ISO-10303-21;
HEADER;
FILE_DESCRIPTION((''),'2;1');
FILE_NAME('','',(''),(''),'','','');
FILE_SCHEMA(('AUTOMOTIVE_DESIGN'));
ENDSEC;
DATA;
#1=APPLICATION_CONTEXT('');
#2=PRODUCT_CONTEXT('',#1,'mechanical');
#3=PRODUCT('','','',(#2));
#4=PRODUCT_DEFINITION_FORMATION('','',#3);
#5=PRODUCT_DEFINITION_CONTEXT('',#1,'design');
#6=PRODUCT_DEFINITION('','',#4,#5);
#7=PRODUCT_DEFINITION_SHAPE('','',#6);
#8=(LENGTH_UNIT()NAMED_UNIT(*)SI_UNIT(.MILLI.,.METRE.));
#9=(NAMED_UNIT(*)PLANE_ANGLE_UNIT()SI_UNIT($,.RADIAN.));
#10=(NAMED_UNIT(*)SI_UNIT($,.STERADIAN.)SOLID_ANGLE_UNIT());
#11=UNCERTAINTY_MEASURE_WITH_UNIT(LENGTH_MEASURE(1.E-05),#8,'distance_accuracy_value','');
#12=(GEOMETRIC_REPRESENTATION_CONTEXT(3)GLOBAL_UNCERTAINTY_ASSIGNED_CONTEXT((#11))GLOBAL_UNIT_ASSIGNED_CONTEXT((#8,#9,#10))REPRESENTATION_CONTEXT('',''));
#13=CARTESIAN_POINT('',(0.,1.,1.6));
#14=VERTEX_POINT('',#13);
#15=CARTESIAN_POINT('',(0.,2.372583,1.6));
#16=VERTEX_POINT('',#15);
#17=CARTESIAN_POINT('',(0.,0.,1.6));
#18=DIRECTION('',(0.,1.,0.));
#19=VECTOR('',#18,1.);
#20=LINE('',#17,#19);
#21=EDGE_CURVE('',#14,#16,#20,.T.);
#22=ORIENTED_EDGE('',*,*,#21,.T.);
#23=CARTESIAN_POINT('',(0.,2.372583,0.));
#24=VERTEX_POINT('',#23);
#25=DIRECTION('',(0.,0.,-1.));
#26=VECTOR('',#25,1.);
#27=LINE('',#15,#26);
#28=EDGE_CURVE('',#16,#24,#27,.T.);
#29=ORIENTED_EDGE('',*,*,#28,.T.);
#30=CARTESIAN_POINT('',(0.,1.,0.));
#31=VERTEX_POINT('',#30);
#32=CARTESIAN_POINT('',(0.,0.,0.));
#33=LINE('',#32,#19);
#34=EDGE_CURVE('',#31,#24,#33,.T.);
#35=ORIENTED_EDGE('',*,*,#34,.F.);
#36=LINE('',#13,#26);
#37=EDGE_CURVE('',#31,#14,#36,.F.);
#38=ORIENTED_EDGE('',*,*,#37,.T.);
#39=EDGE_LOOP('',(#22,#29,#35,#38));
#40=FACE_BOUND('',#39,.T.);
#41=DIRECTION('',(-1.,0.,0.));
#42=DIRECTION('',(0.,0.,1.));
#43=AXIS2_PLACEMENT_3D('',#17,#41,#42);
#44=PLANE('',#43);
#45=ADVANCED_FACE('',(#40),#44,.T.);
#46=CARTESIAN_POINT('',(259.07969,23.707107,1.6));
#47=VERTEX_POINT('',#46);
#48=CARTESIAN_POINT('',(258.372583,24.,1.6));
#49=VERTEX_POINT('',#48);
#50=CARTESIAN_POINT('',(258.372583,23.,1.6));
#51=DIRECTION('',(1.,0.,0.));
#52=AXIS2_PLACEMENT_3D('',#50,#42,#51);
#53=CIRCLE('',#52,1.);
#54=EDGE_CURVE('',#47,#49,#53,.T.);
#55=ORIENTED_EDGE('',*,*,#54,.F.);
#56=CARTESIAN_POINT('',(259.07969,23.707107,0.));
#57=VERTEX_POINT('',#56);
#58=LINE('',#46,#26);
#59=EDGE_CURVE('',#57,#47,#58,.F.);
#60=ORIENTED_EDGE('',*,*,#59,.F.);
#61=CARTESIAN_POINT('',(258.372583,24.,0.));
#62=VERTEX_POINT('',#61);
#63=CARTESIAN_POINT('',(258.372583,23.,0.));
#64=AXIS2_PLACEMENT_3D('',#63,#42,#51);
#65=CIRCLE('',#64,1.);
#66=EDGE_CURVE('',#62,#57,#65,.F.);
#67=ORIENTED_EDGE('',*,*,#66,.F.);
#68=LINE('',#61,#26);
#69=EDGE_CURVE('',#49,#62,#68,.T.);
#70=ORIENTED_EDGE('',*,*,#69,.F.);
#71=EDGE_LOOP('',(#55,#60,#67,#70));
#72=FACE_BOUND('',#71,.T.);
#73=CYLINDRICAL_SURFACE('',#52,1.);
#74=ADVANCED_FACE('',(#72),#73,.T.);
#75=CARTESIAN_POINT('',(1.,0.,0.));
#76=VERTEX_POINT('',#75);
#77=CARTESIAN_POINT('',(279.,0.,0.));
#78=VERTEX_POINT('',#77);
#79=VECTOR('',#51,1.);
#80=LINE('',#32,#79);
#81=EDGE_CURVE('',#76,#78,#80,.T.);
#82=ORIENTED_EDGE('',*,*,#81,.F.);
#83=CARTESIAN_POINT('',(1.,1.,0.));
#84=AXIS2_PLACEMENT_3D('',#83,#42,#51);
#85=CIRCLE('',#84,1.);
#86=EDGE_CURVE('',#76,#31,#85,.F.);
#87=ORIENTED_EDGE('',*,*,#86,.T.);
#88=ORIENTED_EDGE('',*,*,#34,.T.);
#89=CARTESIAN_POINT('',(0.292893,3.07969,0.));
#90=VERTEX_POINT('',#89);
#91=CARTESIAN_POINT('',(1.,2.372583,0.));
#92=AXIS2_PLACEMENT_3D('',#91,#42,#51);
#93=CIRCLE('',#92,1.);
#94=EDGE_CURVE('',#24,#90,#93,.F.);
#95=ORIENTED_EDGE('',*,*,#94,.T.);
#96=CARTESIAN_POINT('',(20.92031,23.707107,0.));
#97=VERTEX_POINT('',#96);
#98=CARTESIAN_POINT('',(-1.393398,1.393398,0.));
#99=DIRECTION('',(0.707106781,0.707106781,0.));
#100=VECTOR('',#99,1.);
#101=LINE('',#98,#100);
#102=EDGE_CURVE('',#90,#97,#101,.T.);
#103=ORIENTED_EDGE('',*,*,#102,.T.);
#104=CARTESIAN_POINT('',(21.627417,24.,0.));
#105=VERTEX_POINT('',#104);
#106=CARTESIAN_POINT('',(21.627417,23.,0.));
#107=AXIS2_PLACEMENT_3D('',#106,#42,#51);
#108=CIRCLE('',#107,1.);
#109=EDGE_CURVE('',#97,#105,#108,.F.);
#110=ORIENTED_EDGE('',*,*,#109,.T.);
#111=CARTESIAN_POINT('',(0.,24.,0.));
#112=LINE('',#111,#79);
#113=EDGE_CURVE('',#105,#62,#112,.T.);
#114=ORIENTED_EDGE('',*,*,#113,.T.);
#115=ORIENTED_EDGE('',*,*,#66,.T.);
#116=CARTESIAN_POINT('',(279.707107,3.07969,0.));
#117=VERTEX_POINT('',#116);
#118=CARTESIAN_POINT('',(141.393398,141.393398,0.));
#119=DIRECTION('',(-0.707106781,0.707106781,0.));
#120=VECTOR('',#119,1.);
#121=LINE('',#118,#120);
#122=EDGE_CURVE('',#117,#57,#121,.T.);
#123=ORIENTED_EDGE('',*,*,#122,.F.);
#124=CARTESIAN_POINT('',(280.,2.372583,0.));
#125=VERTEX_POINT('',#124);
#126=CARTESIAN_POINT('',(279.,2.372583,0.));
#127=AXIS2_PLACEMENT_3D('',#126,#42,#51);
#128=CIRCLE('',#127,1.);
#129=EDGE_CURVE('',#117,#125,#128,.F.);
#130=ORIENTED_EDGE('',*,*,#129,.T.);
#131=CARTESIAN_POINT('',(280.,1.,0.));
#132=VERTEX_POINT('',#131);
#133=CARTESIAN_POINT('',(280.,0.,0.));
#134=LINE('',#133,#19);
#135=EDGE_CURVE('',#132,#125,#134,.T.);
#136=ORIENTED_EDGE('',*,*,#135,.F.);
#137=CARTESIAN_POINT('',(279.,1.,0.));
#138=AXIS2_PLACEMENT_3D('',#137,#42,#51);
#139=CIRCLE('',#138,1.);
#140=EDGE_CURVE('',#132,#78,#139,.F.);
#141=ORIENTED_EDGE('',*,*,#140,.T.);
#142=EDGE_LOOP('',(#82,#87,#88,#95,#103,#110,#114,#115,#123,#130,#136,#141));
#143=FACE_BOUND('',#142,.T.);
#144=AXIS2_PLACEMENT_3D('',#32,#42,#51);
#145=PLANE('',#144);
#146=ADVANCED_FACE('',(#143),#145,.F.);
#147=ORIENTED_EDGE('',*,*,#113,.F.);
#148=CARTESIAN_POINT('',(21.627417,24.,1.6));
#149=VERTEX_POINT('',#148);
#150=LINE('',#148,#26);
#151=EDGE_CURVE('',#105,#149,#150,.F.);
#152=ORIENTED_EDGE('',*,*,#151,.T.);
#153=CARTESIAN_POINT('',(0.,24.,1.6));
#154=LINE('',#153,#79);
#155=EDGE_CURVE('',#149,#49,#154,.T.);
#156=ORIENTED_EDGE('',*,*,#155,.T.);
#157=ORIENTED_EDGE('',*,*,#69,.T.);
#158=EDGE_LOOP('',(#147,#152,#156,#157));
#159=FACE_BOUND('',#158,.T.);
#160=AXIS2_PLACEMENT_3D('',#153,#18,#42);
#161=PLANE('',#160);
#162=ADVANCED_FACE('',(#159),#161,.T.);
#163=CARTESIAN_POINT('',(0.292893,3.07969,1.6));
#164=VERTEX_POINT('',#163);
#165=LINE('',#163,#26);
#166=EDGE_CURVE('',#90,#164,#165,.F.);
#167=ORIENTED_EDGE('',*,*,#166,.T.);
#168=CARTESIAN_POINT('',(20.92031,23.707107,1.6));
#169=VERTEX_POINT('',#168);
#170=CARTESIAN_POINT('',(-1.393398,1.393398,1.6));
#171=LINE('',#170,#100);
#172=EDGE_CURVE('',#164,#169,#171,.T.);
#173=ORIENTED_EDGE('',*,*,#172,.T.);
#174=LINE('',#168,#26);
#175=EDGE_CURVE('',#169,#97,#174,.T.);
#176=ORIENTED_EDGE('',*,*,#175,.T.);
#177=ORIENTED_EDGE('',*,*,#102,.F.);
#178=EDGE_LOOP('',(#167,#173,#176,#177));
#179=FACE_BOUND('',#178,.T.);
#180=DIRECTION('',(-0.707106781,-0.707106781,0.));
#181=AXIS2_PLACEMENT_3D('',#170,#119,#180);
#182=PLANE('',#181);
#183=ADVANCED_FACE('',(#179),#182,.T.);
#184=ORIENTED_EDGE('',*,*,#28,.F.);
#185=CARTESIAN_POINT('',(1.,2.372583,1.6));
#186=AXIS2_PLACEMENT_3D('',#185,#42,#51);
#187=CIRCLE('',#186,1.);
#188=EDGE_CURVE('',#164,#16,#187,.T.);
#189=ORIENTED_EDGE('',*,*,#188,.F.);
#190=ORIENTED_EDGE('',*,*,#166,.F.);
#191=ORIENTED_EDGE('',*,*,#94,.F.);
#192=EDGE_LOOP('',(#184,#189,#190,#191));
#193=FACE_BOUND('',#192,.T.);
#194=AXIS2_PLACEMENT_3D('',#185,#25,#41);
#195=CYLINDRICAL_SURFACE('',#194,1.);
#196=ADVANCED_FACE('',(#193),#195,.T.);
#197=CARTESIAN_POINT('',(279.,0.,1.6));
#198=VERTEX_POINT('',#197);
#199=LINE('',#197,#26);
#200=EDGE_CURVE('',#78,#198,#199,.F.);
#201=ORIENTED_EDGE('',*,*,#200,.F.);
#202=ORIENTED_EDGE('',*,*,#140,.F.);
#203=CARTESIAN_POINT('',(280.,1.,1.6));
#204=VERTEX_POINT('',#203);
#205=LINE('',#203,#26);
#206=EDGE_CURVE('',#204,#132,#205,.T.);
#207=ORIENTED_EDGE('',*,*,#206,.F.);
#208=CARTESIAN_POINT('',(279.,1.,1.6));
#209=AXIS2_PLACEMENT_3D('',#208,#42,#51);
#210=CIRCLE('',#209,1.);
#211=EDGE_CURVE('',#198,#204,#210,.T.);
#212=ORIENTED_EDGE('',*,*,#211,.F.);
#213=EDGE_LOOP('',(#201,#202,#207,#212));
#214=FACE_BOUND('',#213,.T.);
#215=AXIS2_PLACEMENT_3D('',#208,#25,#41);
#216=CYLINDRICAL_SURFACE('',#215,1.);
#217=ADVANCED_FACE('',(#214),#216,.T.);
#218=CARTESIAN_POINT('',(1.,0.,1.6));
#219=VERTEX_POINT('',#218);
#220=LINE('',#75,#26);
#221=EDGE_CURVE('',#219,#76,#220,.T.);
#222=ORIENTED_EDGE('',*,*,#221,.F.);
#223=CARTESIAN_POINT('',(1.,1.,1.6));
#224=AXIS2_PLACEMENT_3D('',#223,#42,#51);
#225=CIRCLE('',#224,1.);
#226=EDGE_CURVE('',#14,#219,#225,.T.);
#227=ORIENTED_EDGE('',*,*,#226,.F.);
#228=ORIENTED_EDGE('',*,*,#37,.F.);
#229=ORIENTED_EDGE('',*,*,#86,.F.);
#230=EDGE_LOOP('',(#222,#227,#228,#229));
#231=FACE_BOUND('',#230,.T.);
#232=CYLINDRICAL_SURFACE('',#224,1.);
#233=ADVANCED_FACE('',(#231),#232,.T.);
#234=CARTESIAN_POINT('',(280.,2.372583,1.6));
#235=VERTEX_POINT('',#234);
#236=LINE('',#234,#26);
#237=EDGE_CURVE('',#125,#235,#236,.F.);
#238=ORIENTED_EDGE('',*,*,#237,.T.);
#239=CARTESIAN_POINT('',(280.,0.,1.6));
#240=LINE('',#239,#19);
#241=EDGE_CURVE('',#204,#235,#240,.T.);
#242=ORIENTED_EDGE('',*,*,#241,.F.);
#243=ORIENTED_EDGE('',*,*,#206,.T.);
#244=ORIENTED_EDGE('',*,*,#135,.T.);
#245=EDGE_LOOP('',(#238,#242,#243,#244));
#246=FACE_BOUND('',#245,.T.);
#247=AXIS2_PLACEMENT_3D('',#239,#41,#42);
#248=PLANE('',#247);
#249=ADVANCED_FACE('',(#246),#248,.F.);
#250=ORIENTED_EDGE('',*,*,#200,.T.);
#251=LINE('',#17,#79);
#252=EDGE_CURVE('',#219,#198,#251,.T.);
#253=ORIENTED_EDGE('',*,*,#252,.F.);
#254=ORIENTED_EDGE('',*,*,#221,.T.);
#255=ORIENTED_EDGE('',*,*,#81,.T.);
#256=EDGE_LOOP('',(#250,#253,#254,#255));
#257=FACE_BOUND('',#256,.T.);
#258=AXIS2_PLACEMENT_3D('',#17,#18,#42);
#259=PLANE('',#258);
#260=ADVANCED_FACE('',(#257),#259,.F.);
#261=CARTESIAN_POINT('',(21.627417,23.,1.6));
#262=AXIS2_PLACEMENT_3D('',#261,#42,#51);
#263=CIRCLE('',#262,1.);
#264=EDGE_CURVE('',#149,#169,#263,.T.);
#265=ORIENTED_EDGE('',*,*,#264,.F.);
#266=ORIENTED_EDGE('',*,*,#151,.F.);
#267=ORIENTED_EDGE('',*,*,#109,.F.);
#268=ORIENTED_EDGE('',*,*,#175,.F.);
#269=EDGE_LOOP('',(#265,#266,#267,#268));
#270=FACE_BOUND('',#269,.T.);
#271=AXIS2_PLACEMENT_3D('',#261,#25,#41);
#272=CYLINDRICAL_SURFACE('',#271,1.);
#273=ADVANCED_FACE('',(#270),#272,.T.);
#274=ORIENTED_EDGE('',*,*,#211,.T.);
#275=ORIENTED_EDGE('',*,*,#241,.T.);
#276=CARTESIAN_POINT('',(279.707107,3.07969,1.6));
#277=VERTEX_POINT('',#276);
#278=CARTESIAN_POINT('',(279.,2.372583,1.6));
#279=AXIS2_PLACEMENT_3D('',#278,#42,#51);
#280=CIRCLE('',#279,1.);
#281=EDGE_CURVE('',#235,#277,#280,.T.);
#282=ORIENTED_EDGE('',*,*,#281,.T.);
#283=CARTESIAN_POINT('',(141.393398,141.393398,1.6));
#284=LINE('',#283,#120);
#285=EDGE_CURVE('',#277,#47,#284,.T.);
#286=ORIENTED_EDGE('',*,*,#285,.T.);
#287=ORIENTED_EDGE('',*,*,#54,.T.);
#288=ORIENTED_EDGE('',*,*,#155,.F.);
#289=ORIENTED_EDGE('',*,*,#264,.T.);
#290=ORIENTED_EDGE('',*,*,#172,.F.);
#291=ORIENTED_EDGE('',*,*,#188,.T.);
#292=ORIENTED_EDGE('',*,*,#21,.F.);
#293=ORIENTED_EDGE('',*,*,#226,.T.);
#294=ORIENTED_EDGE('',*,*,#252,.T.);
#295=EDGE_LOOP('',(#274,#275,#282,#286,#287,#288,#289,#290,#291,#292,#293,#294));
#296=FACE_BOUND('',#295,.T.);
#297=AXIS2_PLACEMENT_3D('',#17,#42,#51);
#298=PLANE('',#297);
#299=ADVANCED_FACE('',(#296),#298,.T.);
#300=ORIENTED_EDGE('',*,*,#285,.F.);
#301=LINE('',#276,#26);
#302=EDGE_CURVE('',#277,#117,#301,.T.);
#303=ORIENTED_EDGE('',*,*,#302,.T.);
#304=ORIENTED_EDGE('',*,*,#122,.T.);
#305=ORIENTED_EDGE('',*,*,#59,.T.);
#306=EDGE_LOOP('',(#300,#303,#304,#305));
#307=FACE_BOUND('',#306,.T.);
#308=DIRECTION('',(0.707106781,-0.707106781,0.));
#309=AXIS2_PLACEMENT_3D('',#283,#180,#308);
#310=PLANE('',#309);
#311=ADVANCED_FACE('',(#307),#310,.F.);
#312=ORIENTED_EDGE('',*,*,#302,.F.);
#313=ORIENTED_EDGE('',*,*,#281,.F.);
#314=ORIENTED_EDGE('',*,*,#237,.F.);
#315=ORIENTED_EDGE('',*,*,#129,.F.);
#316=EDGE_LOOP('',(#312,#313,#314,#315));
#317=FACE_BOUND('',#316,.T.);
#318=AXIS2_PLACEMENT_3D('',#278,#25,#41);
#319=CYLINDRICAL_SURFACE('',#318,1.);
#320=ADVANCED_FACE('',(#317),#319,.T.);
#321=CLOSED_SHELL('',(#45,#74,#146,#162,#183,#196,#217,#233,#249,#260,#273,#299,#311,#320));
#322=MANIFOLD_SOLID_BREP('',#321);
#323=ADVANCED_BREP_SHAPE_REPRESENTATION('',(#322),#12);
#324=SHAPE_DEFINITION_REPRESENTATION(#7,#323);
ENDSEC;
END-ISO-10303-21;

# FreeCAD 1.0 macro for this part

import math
import FreeCAD as App
import Part
import Sketcher

V = App.Vector


def edges_at(feature, points):
    """Names of the edges that pass closest to the given points."""
    edges = feature.Shape.Edges
    near = lambda p: min(range(len(edges)), key=lambda i: edges[i].distToShape(Part.Vertex(*p))[0])
    return sorted({f"Edge{near(p) + 1}" for p in points})

doc = App.newDocument("Part")
body = doc.addObject("PartDesign::Body", "Body")

sketch1 = body.newObject("Sketcher::SketchObject", "Sketch")
sketch1.AttachmentSupport = (doc.getObject("XY_Plane"), [""])
sketch1.MapMode = "FlatFace"
sketch1.addGeometry([
    Part.LineSegment(V(21.2, 24, 0), V(0, 2.8, 0)),
    Part.LineSegment(V(0, 2.8, 0), V(0, 0, 0)),
    Part.LineSegment(V(0, 0, 0), V(42, 0, 0)),
    Part.LineSegment(V(42, 0, 0), V(42, 11, 0)),
    Part.ArcOfCircle(Part.Circle(V(46, 11, 0), V(0, 0, 1), 4), math.radians(90), math.radians(180)),
    Part.LineSegment(V(46, 15, 0), V(234, 15, 0)),
    Part.ArcOfCircle(Part.Circle(V(234, 11, 0), V(0, 0, 1), 4), math.radians(0), math.radians(90)),
    Part.LineSegment(V(238, 11, 0), V(238, 0, 0)),
    Part.LineSegment(V(238, 0, 0), V(280, 0, 0)),
    Part.LineSegment(V(280, 0, 0), V(280, 2.8, 0)),
    Part.LineSegment(V(280, 2.8, 0), V(258.8, 24, 0)),
    Part.LineSegment(V(258.8, 24, 0), V(21.2, 24, 0)),
], False)
sketch1.addConstraint([
    Sketcher.Constraint("Coincident", 0, 2, 1, 1),
    Sketcher.Constraint("Coincident", 1, 2, 2, 1),
    Sketcher.Constraint("Coincident", 2, 2, 3, 1),
    Sketcher.Constraint("Tangent", 3, 2, 4, 2),
    Sketcher.Constraint("Tangent", 4, 1, 5, 1),
    Sketcher.Constraint("Tangent", 5, 2, 6, 2),
    Sketcher.Constraint("Tangent", 6, 1, 7, 1),
    Sketcher.Constraint("Coincident", 7, 2, 8, 1),
    Sketcher.Constraint("Coincident", 8, 2, 9, 1),
    Sketcher.Constraint("Coincident", 9, 2, 10, 1),
    Sketcher.Constraint("Coincident", 10, 2, 11, 1),
    Sketcher.Constraint("Coincident", 11, 2, 0, 1),
    Sketcher.Constraint("Vertical", 1),
    Sketcher.Constraint("Horizontal", 2),
    Sketcher.Constraint("Vertical", 3),
    Sketcher.Constraint("Horizontal", 5),
    Sketcher.Constraint("Vertical", 7),
    Sketcher.Constraint("Horizontal", 8),
    Sketcher.Constraint("Vertical", 9),
    Sketcher.Constraint("Horizontal", 11),
    Sketcher.Constraint("Coincident", 1, 2, -1, 1),
    Sketcher.Constraint("Equal", 4, 6),
    Sketcher.Constraint("PointOnObject", 7, 2, -1),
    Sketcher.Constraint("Perpendicular", 0, 10),
    Sketcher.Constraint("Horizontal", 0, 2, 9, 2),
    Sketcher.Constraint("Equal", 2, 8),
    Sketcher.Constraint("Equal", 0, 10),
    Sketcher.Constraint("Radius", 4, 4.0),
    Sketcher.Constraint("DistanceX", 2, 1, 2, 2, 42.0),
    Sketcher.Constraint("DistanceX", 5, 1, 5, 2, 188.0),
    Sketcher.Constraint("DistanceY", 3, 1, 3, 2, 11.0),
    Sketcher.Constraint("Distance", 0, 30.0),
    Sketcher.Constraint("DistanceY", -1, 1, 10, 2, 24.0),
])
pad1 = body.newObject("PartDesign::Pad", "Pad")
pad1.Profile = sketch1
pad1.Length = 1.6
doc.recompute()

fillet = body.newObject("PartDesign::Fillet", "Fillet")
fillet.Base = (pad1, edges_at(pad1, [
    (0, 0, 0.8),
    (0, 2.787, 0.8),
    (21.213, 24, 0.8),
    (258.787, 24, 0.8),
    (280, 2.787, 0.8),
    (280, 0, 0.8),
]))
fillet.Radius = 1

sketch2 = body.newObject("Sketcher::SketchObject", "Sketch001")
sketch2.AttachmentSupport = (doc.getObject("XY_Plane"), [""])
sketch2.MapMode = "FlatFace"
sketch2.addGeometry([
    Part.LineSegment(V(42, 11, 0), V(42, 0, 0)),
    Part.LineSegment(V(42, 0, 0), V(238, 0, 0)),
    Part.LineSegment(V(238, 0, 0), V(238, 11, 0)),
    Part.ArcOfCircle(Part.Circle(V(234, 11, 0), V(0, 0, 1), 4), math.radians(0), math.radians(90)),
    Part.LineSegment(V(234, 15, 0), V(46, 15, 0)),
    Part.ArcOfCircle(Part.Circle(V(46, 11, 0), V(0, 0, 1), 4), math.radians(90), math.radians(180)),
], False)
sketch2.addConstraint([
    Sketcher.Constraint("Coincident", 0, 2, 1, 1),
    Sketcher.Constraint("Coincident", 1, 2, 2, 1),
    Sketcher.Constraint("Tangent", 2, 2, 3, 1),
    Sketcher.Constraint("Tangent", 3, 2, 4, 1),
    Sketcher.Constraint("Tangent", 4, 2, 5, 1),
    Sketcher.Constraint("Tangent", 5, 2, 0, 1),
    Sketcher.Constraint("Vertical", 0),
    Sketcher.Constraint("Horizontal", 1),
    Sketcher.Constraint("Vertical", 2),
    Sketcher.Constraint("Horizontal", 4),
    Sketcher.Constraint("Equal", 3, 5),
    Sketcher.Constraint("PointOnObject", 0, 2, -1),
    Sketcher.Constraint("Radius", 3, 4.0),
    Sketcher.Constraint("DistanceX", 1, 1, 1, 2, 196.0),
    Sketcher.Constraint("DistanceY", 0, 2, 0, 1, 11.0),
    Sketcher.Constraint("DistanceX", -1, 1, 3, 3, 234.0),
])
pad2 = body.newObject("PartDesign::Pad", "Pad001")
pad2.Profile = sketch2
pad2.Length = 1.6

doc.recompute()
